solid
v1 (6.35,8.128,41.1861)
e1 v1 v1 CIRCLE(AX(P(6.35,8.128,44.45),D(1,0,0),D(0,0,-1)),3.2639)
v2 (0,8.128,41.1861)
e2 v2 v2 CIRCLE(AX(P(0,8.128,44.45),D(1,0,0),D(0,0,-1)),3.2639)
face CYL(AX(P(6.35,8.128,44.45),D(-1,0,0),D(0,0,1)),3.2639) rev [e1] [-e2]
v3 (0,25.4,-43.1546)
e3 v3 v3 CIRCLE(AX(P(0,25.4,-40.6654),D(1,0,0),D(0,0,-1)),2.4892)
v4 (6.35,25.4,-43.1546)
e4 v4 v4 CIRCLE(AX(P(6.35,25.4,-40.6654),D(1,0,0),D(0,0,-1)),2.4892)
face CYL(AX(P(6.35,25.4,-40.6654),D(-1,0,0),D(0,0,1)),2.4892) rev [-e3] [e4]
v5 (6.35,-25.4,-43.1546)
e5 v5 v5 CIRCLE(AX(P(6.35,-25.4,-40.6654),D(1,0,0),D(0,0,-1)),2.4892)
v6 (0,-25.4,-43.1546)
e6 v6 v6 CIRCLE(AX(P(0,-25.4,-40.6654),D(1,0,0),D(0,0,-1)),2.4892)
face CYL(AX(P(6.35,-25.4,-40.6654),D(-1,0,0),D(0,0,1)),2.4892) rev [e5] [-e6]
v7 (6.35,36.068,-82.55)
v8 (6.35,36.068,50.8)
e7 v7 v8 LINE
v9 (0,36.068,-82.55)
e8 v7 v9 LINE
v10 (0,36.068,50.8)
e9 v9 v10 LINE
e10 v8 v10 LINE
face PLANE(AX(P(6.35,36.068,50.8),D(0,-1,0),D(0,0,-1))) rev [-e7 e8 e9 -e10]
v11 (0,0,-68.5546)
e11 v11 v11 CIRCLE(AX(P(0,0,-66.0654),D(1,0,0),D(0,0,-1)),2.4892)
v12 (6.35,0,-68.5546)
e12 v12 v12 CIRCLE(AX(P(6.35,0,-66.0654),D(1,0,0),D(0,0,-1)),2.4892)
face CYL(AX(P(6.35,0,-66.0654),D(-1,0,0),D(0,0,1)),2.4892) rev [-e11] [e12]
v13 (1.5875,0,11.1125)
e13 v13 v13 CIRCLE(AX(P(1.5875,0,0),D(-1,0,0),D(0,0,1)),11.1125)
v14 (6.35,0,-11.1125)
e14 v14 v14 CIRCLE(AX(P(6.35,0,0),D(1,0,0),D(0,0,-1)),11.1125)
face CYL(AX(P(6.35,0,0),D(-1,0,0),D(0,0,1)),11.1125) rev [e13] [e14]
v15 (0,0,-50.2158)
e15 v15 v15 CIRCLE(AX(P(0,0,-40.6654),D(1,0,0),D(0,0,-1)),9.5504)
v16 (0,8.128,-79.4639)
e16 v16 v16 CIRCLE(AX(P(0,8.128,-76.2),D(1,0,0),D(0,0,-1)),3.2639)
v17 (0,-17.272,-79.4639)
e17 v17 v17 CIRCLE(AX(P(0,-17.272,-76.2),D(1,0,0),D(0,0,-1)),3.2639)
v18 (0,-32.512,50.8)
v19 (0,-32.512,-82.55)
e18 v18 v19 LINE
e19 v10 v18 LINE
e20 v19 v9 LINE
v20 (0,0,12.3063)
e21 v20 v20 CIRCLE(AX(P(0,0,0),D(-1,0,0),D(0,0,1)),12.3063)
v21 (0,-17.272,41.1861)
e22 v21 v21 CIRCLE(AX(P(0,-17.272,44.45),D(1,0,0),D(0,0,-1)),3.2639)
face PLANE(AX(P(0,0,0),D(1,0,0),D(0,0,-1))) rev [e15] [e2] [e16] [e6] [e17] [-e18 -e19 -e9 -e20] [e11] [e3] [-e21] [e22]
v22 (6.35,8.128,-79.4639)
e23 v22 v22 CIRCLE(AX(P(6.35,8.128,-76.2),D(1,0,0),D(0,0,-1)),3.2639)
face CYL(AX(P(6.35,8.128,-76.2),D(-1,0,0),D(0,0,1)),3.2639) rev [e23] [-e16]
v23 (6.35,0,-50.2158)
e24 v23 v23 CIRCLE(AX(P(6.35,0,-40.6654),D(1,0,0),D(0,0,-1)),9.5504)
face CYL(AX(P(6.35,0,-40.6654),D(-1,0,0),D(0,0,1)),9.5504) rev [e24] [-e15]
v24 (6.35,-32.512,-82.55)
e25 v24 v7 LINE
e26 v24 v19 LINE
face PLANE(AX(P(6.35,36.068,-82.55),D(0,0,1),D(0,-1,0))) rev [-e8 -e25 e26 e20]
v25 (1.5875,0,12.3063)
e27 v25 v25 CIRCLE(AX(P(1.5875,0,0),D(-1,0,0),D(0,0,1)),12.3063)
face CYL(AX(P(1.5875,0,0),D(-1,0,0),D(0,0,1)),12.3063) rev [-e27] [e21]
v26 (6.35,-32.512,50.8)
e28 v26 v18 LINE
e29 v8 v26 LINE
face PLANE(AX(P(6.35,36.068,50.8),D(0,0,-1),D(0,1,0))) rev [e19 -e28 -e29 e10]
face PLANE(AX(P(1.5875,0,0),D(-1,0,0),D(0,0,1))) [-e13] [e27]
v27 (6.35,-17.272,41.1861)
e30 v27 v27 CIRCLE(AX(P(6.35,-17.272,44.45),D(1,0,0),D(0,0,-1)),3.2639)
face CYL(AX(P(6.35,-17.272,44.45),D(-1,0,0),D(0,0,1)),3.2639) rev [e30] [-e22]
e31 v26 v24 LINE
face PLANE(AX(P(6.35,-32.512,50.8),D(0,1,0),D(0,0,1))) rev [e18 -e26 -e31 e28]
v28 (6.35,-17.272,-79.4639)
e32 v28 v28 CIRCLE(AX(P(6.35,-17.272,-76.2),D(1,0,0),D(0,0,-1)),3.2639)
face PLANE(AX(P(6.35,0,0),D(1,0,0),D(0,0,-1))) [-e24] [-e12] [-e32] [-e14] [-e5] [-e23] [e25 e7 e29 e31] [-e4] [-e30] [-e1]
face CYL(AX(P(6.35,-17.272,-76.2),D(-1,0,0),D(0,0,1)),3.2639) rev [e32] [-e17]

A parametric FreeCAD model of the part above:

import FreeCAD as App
import Part
import Sketcher
from FreeCAD import Vector
Q = App.Units.Quantity


def add_polygon(sketch, points):
    """Adds a closed chain of lines whose ends are joined by coincident constraints."""
    first, n = sketch.GeometryCount, len(points)
    for a, b in zip(points, points[1:] + points[:1]):
        sketch.addGeometry(Part.LineSegment(App.Vector(*a, 0), App.Vector(*b, 0)), False)
    for i in range(n):
        sketch.addConstraint(Sketcher.Constraint("Coincident", first + i, 2, first + (i + 1) % n, 1))

doc = App.newDocument("Part")
body = doc.addObject("PartDesign::Body", "Body")

sketch1 = body.newObject("Sketcher::SketchObject", "Sketch")
sketch1.AttachmentSupport = (doc.getObject("YZ_Plane"), [""])
sketch1.MapMode = "FlatFace"
add_polygon(sketch1, [(36.1, 50.8), (-32.5, 50.8), (-32.5, -82.5), (36.1, -82.5)])
sketch1.addGeometry(Part.Circle(Vector(-17.3, 44.5, 0), Vector(0, 0, 1), 3.3), False)
sketch1.addGeometry(Part.Circle(Vector(0, 0, 0), Vector(0, 0, 1), 11.1), False)
sketch1.addGeometry(Part.Circle(Vector(-25.4, -40.7, 0), Vector(0, 0, 1), 2.5), False)
sketch1.addGeometry(Part.Circle(Vector(-17.3, -76.2, 0), Vector(0, 0, 1), 3.3), False)
sketch1.addGeometry(Part.Circle(Vector(0, -40.7, 0), Vector(0, 0, 1), 9.6), False)
sketch1.addGeometry(Part.Circle(Vector(0, -66.1, 0), Vector(0, 0, 1), 2.5), False)
sketch1.addGeometry(Part.Circle(Vector(8.1, 44.5, 0), Vector(0, 0, 1), 3.3), False)
sketch1.addGeometry(Part.Circle(Vector(8.1, -76.2, 0), Vector(0, 0, 1), 3.3), False)
sketch1.addGeometry(Part.Circle(Vector(25.4, -40.7, 0), Vector(0, 0, 1), 2.5), False)
sketch1.addConstraint([
    Sketcher.Constraint("Horizontal", 0),
    Sketcher.Constraint("Vertical", 1),
    Sketcher.Constraint("Horizontal", 2),
    Sketcher.Constraint("Vertical", 3),
    Sketcher.Constraint("Coincident", 5, 3, -1, 1),
    Sketcher.Constraint("Equal", 4, 7),
    Sketcher.Constraint("Equal", 6, 9),
    Sketcher.Constraint("Equal", 7, 10),
    Sketcher.Constraint("Equal", 10, 11),
    Sketcher.Constraint("Equal", 9, 12),
    Sketcher.Constraint("Symmetric", 6, 3, 12, 3, -2),
    Sketcher.Constraint("PointOnObject", 8, 3, -2),
    Sketcher.Constraint("PointOnObject", 9, 3, -2),
    Sketcher.Constraint("Horizontal", 6, 3, 8, 3),
    Sketcher.Constraint("Horizontal", 4, 3, 10, 3),
    Sketcher.Constraint("Horizontal", 7, 3, 11, 3),
    Sketcher.Constraint("Vertical", 4, 3, 7, 3),
    Sketcher.Constraint("Vertical", 10, 3, 11, 3),
    Sketcher.Constraint("Diameter", 4, Q("0.257 in")),
    Sketcher.Constraint("Diameter", 5, Q("0.875 in")),
    Sketcher.Constraint("Diameter", 6, Q("0.196 in")),
    Sketcher.Constraint("Diameter", 8, Q("0.752 in")),
    Sketcher.Constraint("DistanceX", 0, 2, 0, 1, Q("2.7 in")),
    Sketcher.Constraint("DistanceX", 6, 3, -1, 1, Q("1 in")),
    Sketcher.Constraint("DistanceY", 7, 3, -1, 1, Q("3 in")),
    Sketcher.Constraint("DistanceY", -1, 1, 0, 2, Q("2 in")),
    Sketcher.Constraint("DistanceY", 9, 3, 8, 3, Q("1 in")),
    Sketcher.Constraint("DistanceX", 4, 3, 10, 3, Q("1 in")),
    Sketcher.Constraint("DistanceY", 1, 2, 1, 1, Q("5.25 in")),
    Sketcher.Constraint("DistanceX", 0, 2, 4, 3, Q("0.6 in")),
    Sketcher.Constraint("DistanceX", 4, 3, -1, 1, Q("0.68 in")),
    Sketcher.Constraint("DistanceY", -1, 1, 4, 3, Q("1.75 in")),
    Sketcher.Constraint("DistanceY", 6, 3, -1, 1, Q("1.601 in")),
])
pad1 = body.newObject("PartDesign::Pad", "Pad")
pad1.Profile = sketch1
pad1.Length = Q("0.25 in")

sketch2 = body.newObject("Sketcher::SketchObject", "Sketch001")
sketch2.AttachmentSupport = (doc.getObject("YZ_Plane"), [""])
sketch2.MapMode = "FlatFace"
sketch2.addGeometry(Part.Circle(Vector(0, 0, 0), Vector(0, 0, 1), 12), False)
sketch2.addConstraint([
    Sketcher.Constraint("Coincident", 0, 3, -1, 1),
    Sketcher.Constraint("Diameter", 0, Q("0.969 in")),
])
pocket1 = body.newObject("PartDesign::Pocket", "Pocket")
pocket1.Profile = sketch2
pocket1.Length = Q("0.0625 in")
pocket1.Reversed = True

doc.recompute()
